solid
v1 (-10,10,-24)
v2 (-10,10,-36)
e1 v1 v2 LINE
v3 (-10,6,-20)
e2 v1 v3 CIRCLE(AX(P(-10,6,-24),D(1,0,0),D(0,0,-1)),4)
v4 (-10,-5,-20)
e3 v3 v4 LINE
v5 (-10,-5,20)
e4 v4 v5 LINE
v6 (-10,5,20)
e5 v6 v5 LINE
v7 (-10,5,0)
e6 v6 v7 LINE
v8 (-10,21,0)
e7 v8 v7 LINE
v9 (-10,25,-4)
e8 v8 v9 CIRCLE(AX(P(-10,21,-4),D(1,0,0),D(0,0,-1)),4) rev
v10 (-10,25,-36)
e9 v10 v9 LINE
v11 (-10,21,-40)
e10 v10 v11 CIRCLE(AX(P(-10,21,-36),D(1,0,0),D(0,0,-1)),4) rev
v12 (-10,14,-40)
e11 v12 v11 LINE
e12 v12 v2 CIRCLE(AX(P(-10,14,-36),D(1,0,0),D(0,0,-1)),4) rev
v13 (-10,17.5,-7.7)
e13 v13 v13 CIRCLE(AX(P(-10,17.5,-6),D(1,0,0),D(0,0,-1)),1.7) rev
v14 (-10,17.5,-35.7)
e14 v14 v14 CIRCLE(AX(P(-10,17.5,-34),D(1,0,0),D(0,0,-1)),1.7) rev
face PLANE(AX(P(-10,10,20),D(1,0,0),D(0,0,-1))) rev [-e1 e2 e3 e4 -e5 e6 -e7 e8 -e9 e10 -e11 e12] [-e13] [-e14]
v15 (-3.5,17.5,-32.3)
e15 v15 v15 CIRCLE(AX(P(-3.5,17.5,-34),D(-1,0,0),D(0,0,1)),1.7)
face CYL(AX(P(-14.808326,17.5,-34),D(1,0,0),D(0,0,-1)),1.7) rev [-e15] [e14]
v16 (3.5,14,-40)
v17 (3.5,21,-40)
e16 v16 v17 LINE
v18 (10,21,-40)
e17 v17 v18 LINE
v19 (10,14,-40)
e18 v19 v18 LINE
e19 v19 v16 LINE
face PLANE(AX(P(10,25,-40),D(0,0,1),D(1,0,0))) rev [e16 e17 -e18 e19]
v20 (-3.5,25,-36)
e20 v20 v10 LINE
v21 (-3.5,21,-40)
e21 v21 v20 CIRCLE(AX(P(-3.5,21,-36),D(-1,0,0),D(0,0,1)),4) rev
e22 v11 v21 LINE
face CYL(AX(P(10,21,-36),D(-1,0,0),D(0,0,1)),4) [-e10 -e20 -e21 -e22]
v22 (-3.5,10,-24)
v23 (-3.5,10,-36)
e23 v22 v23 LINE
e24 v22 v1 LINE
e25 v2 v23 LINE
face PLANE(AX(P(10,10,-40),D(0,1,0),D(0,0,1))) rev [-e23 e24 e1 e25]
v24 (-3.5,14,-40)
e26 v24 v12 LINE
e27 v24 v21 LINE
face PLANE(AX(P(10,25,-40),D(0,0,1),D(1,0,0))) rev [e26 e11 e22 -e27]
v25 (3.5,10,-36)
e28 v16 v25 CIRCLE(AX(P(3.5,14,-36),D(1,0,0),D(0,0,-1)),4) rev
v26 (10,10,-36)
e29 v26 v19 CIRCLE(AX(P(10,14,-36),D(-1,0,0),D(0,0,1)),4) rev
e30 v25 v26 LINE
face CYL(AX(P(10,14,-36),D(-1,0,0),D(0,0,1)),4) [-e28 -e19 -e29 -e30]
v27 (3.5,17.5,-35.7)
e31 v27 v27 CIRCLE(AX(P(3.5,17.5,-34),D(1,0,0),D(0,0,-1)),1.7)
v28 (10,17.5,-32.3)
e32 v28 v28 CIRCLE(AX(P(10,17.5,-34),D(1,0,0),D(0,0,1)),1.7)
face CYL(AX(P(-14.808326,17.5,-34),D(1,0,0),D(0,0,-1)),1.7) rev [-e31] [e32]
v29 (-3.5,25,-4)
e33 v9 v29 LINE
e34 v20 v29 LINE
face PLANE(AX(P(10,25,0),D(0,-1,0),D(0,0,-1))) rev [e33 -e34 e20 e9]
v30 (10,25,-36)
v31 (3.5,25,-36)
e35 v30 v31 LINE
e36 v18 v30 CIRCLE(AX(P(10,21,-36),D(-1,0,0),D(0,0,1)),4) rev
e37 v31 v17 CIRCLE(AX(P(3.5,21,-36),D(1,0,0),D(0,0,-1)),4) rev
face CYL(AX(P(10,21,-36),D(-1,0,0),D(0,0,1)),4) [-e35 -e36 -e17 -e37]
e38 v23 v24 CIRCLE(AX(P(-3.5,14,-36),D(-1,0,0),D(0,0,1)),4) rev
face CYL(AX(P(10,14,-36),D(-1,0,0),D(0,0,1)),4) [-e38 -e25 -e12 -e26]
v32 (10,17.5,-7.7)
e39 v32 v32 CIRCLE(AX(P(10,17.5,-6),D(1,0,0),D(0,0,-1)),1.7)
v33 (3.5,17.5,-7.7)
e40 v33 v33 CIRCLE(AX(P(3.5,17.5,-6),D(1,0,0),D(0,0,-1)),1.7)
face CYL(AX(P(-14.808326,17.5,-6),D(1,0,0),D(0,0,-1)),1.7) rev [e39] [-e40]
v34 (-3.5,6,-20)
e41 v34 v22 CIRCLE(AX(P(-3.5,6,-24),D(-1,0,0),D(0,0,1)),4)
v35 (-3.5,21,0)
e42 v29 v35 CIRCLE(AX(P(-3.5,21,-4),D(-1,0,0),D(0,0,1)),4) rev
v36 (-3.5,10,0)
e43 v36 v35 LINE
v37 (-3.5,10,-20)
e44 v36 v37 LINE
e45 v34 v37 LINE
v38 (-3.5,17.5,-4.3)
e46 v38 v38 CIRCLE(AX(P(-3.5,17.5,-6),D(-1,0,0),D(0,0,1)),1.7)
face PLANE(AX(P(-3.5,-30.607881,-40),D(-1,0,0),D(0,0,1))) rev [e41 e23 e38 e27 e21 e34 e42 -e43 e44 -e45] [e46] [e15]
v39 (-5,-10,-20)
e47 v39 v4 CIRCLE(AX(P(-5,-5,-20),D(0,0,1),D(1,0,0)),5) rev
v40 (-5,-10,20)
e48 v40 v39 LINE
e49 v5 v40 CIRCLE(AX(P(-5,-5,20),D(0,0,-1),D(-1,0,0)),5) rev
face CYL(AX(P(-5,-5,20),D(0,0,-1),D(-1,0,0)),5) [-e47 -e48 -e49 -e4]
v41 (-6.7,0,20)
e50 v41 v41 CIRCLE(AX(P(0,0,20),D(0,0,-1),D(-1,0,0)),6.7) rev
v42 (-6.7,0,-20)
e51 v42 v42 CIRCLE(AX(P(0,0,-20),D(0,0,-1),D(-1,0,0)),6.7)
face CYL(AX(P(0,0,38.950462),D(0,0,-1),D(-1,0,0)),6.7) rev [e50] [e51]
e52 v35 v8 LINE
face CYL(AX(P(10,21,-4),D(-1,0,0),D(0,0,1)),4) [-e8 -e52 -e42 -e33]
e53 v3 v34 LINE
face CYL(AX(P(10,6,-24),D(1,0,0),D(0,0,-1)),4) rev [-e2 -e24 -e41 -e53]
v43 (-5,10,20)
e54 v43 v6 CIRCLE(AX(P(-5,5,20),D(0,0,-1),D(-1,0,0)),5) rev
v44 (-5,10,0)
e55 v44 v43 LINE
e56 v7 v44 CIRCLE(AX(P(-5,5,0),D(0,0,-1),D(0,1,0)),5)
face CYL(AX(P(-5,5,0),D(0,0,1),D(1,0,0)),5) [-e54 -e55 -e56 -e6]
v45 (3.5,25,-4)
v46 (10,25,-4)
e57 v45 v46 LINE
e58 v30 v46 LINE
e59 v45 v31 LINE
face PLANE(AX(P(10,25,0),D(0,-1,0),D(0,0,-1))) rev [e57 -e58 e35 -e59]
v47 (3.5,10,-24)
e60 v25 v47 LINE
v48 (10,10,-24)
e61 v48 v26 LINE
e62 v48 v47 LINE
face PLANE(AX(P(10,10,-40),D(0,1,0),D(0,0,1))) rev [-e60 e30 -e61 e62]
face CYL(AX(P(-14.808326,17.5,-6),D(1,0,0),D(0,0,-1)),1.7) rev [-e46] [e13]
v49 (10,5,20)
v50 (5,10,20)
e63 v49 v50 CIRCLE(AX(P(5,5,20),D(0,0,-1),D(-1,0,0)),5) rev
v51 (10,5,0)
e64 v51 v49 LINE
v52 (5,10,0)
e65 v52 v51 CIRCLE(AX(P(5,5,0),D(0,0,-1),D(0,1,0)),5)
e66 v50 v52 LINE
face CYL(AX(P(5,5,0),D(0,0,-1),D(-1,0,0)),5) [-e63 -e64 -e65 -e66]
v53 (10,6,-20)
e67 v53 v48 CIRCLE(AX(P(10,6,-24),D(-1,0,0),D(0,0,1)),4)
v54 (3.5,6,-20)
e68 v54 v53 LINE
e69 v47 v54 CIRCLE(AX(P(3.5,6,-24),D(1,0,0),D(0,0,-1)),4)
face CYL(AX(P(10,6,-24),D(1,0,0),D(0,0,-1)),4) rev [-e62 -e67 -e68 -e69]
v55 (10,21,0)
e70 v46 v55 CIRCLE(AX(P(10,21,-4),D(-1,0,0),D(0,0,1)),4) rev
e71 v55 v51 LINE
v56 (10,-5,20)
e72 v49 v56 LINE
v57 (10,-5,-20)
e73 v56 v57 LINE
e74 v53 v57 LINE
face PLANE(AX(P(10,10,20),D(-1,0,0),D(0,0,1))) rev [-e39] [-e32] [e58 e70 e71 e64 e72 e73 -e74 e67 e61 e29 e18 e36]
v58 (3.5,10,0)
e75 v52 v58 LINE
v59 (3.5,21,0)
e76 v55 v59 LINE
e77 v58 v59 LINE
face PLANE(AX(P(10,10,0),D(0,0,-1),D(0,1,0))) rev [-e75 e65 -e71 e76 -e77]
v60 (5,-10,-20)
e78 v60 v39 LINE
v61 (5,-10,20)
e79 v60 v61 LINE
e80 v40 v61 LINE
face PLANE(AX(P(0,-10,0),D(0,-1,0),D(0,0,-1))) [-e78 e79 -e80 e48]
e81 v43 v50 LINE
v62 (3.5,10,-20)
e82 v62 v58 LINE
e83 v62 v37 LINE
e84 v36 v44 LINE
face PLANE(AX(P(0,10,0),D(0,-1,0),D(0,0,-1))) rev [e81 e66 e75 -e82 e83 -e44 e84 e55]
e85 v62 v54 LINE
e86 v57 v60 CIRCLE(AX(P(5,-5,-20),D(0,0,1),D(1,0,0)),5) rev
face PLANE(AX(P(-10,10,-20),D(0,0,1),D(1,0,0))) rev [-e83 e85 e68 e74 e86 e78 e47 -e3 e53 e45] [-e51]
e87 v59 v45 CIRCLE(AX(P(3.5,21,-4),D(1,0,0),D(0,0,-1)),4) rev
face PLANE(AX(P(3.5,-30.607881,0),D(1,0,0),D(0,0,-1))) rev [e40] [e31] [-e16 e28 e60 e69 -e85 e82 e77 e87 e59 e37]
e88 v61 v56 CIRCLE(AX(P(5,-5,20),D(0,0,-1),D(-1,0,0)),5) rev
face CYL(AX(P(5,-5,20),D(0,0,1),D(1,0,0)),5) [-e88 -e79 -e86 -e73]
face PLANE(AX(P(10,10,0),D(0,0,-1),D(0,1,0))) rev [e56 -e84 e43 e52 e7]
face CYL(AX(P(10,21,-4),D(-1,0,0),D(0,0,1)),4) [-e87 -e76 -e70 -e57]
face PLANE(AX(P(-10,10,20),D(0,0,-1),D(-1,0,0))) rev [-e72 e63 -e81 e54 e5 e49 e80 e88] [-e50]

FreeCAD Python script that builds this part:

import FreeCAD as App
import Part
import Sketcher
Q = App.Units.Quantity


def edges_at(feature, points):
    """Names of the edges that pass closest to the given points."""
    edges = feature.Shape.Edges
    near = lambda p: min(range(len(edges)), key=lambda i: edges[i].distToShape(Part.Vertex(*p))[0])
    return sorted({f"Edge{near(p) + 1}" for p in points})

doc = App.newDocument("Part")
body = doc.addObject("PartDesign::Body", "Body")

sketch1 = body.newObject("Sketcher::SketchObject", "Sketch")
sketch1.AttachmentSupport = (doc.getObject("XZ_Plane"), [""])
sketch1.MapMode = "FlatFace"
sketch1.addGeometry(Part.LineSegment(App.Vector(-10, -20, 0), App.Vector(-10, 20, 0)), False)
sketch1.addGeometry(Part.LineSegment(App.Vector(-10, 20, 0), App.Vector(10, 20, 0)), False)
sketch1.addGeometry(Part.LineSegment(App.Vector(10, 20, 0), App.Vector(10, -20, 0)), False)
sketch1.addGeometry(Part.LineSegment(App.Vector(10, -20, 0), App.Vector(-10, -20, 0)), False)
sketch1.addConstraint(Sketcher.Constraint("Coincident", 0, 2, 1, 1))
sketch1.addConstraint(Sketcher.Constraint("Coincident", 1, 2, 2, 1))
sketch1.addConstraint(Sketcher.Constraint("Coincident", 2, 2, 3, 1))
sketch1.addConstraint(Sketcher.Constraint("Coincident", 3, 2, 0, 1))
sketch1.addConstraint(Sketcher.Constraint("Vertical", 0))
sketch1.addConstraint(Sketcher.Constraint("Horizontal", 1))
sketch1.addConstraint(Sketcher.Constraint("Vertical", 2))
sketch1.addConstraint(Sketcher.Constraint("Horizontal", 3))
sketch1.addConstraint(Sketcher.Constraint("Symmetric", 0, 2, 2, 2, -1, 1))
sketch1.addConstraint(Sketcher.Constraint("DistanceX", 1, 1, 1, 2, Q("20 mm")))
sketch1.addConstraint(Sketcher.Constraint("DistanceY", 0, 1, 0, 2, Q("40 mm")))
pad1 = body.newObject("PartDesign::Pad", "Pad")
pad1.Profile = sketch1
pad1.Length = 20
pad1.Midplane = True

sketch2 = body.newObject("Sketcher::SketchObject", "Sketch001")
sketch2.AttachmentSupport = (doc.getObject("XY_Plane"), [""])
sketch2.MapMode = "FlatFace"
sketch2.AttachmentOffset = App.Placement(App.Vector(0, 0, -20), App.Rotation())
sketch2.addGeometry(Part.Circle(App.Vector(0, 0, 0), App.Vector(0, 0, 1), 7), False)
sketch2.addConstraint(Sketcher.Constraint("Coincident", 0, 3, -1, 1))
sketch2.addConstraint(Sketcher.Constraint("Diameter", 0, Q("13.4 mm")))
pocket1 = body.newObject("PartDesign::Pocket", "Pocket")
pocket1.Profile = sketch2
pocket1.Length = 40
pocket1.Reversed = True

sketch3 = body.newObject("Sketcher::SketchObject", "Sketch002")
sketch3.AttachmentSupport = (doc.getObject("YZ_Plane"), [""])
sketch3.MapMode = "FlatFace"
sketch3.addGeometry(Part.LineSegment(App.Vector(25, 0, 0), App.Vector(10, 0, 0)), False)
sketch3.addGeometry(Part.LineSegment(App.Vector(10, 0, 0), App.Vector(10, -40, 0)), False)
sketch3.addGeometry(Part.LineSegment(App.Vector(10, -40, 0), App.Vector(25, -40, 0)), False)
sketch3.addGeometry(Part.LineSegment(App.Vector(25, -40, 0), App.Vector(25, 0, 0)), False)
sketch3.addConstraint(Sketcher.Constraint("Coincident", 0, 2, 1, 1))
sketch3.addConstraint(Sketcher.Constraint("Coincident", 1, 2, 2, 1))
sketch3.addConstraint(Sketcher.Constraint("Coincident", 2, 2, 3, 1))
sketch3.addConstraint(Sketcher.Constraint("Coincident", 3, 2, 0, 1))
sketch3.addConstraint(Sketcher.Constraint("Horizontal", 0))
sketch3.addConstraint(Sketcher.Constraint("Vertical", 1))
sketch3.addConstraint(Sketcher.Constraint("Horizontal", 2))
sketch3.addConstraint(Sketcher.Constraint("Vertical", 3))
sketch3.addConstraint(Sketcher.Constraint("PointOnObject", 0, 2, -1))
sketch3.addConstraint(Sketcher.Constraint("DistanceX", 0, 2, 0, 1, Q("15 mm")))
sketch3.addConstraint(Sketcher.Constraint("DistanceY", 1, 2, 1, 1, Q("40 mm")))
sketch3.addConstraint(Sketcher.Constraint("DistanceX", -1, 1, 0, 2, Q("10 mm")))
pad2 = body.newObject("PartDesign::Pad", "Pad001")
pad2.Profile = sketch3
pad2.Length = 20
pad2.Midplane = True

sketch4 = body.newObject("Sketcher::SketchObject", "Sketch003")
sketch4.AttachmentSupport = (doc.getObject("XZ_Plane"), [""])
sketch4.MapMode = "FlatFace"
sketch4.AttachmentOffset = App.Placement(App.Vector(0, 0, -25), App.Rotation())
sketch4.addGeometry(Part.LineSegment(App.Vector(-4, -40, 0), App.Vector(-4, 0, 0)), False)
sketch4.addGeometry(Part.LineSegment(App.Vector(-4, 0, 0), App.Vector(4, 0, 0)), False)
sketch4.addGeometry(Part.LineSegment(App.Vector(4, 0, 0), App.Vector(4, -40, 0)), False)
sketch4.addGeometry(Part.LineSegment(App.Vector(4, -40, 0), App.Vector(-4, -40, 0)), False)
sketch4.addConstraint(Sketcher.Constraint("Coincident", 0, 2, 1, 1))
sketch4.addConstraint(Sketcher.Constraint("Coincident", 1, 2, 2, 1))
sketch4.addConstraint(Sketcher.Constraint("Coincident", 2, 2, 3, 1))
sketch4.addConstraint(Sketcher.Constraint("Coincident", 3, 2, 0, 1))
sketch4.addConstraint(Sketcher.Constraint("Vertical", 0))
sketch4.addConstraint(Sketcher.Constraint("Horizontal", 1))
sketch4.addConstraint(Sketcher.Constraint("Vertical", 2))
sketch4.addConstraint(Sketcher.Constraint("Horizontal", 3))
sketch4.addConstraint(Sketcher.Constraint("Symmetric", 0, 2, 1, 2, -1, 1))
sketch4.addConstraint(Sketcher.Constraint("DistanceX", 1, 1, 1, 2, Q("7 mm")))
sketch4.addConstraint(Sketcher.Constraint("DistanceY", 0, 1, 0, 2, Q("40 mm")))
pocket2 = body.newObject("PartDesign::Pocket", "Pocket001")
pocket2.Profile = sketch4
pocket2.Length = 15
pocket2.Reversed = True

sketch5 = body.newObject("Sketcher::SketchObject", "Sketch004")
sketch5.AttachmentSupport = (doc.getObject("YZ_Plane"), [""])
sketch5.MapMode = "FlatFace"
sketch5.AttachmentOffset = App.Placement(App.Vector(0, 0, 10), App.Rotation())
sketch5.addGeometry(Part.Circle(App.Vector(17.5, -6, 0), App.Vector(0, 0, 1), 1.7), False)
sketch5.addGeometry(Part.Circle(App.Vector(17.5, -34, 0), App.Vector(0, 0, 1), 1.7), False)
sketch5.addConstraint(Sketcher.Constraint("Equal", 0, 1))
sketch5.addConstraint(Sketcher.Constraint("Vertical", 0, 3, 1, 3))
sketch5.addConstraint(Sketcher.Constraint("Diameter", 0, Q("3.4 mm")))
sketch5.addConstraint(Sketcher.Constraint("DistanceY", 0, 3, -1, 1, Q("6 mm")))
sketch5.addConstraint(Sketcher.Constraint("DistanceY", 1, 3, -1, 1, Q("34 mm")))
sketch5.addConstraint(Sketcher.Constraint("DistanceX", -1, 1, 0, 3, Q("17.5 mm")))
pocket3 = body.newObject("PartDesign::Pocket", "Pocket002")
pocket3.Profile = sketch5
pocket3.Length = 20
doc.recompute()

fillet = body.newObject("PartDesign::Fillet", "Fillet")
fillet.Base = (pocket3, edges_at(pocket3, [
    (6.75, 10, -40),
    (6.75, 25, -40),
    (6.75, 25, 0),
    (-6.75, 25, 0),
    (-6.75, 25, -40),
    (-6.75, 10, -40),
    (-6.75, 10, -20),
    (6.75, 10, -20),
]))
fillet.Radius = 4
doc.recompute()

fillet2 = body.newObject("PartDesign::Fillet", "Fillet001")
fillet2.Base = (fillet, edges_at(fillet, [
    (-10, 10, 10),
    (10, 10, 10),
    (-10, -10, 0),
    (10, -10, 0),
]))
fillet2.Radius = 5

doc.recompute()
